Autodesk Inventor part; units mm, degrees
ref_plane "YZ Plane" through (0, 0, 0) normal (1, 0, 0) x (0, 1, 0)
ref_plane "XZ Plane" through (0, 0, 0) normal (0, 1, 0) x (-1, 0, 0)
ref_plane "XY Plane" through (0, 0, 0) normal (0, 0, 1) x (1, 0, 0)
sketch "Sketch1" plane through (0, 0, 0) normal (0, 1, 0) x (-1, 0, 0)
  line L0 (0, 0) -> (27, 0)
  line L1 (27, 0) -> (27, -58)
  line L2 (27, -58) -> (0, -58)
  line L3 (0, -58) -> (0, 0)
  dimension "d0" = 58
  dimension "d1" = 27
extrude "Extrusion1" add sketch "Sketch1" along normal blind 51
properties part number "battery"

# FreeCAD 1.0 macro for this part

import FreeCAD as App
import Part
import Sketcher

V = App.Vector


def add_polygon(sketch, points):
    """Adds a closed chain of lines whose ends are joined by coincident constraints."""
    first, n = sketch.GeometryCount, len(points)
    for a, b in zip(points, points[1:] + points[:1]):
        sketch.addGeometry(Part.LineSegment(App.Vector(*a, 0), App.Vector(*b, 0)), False)
    for i in range(n):
        sketch.addConstraint(Sketcher.Constraint("Coincident", first + i, 2, first + (i + 1) % n, 1))

doc = App.newDocument("Part")
body = doc.addObject("PartDesign::Body", "Body")

# Sketch on XZ plane
sketch1 = body.newObject("Sketcher::SketchObject", "Sketch")
sketch1.AttachmentSupport = (doc.getObject("XZ_Plane"), [""])
sketch1.MapMode = "FlatFace"
add_polygon(sketch1, [(-27, 0), (0, 0), (0, -58), (-27, -58)])  # lines 0-3
sketch1.addConstraint([
    Sketcher.Constraint("Horizontal", 0),
    Sketcher.Constraint("Vertical", 1),
    Sketcher.Constraint("Horizontal", 2),
    Sketcher.Constraint("Vertical", 3),
    Sketcher.Constraint("Coincident", 0, 2, -1, 1),
    Sketcher.Constraint("DistanceX", 0, 1, 0, 2, 27.0),
    Sketcher.Constraint("DistanceY", 1, 2, 1, 1, 58.0),
])
pad1 = body.newObject("PartDesign::Pad", "Pad")
pad1.Profile = sketch1
pad1.Length = 51
pad1.Reversed = True

doc.recompute()
